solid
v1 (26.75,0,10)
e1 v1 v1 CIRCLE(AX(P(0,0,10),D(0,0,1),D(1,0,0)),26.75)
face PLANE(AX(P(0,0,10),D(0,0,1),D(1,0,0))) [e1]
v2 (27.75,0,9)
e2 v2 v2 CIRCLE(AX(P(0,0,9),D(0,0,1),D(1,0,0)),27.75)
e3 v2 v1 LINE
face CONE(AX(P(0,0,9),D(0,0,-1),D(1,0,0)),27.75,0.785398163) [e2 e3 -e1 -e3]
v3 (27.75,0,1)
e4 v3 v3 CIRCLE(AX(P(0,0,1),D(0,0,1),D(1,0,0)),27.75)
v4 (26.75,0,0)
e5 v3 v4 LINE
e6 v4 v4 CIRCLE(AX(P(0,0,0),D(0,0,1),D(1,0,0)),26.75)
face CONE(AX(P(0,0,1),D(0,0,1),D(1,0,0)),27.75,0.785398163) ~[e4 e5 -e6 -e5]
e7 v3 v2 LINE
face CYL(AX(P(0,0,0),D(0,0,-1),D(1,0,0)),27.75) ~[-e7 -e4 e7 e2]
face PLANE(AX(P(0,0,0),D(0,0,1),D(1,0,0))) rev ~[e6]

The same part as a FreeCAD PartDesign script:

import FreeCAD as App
import Part
import Sketcher


def edges_at(feature, points):
    """Names of the edges that pass closest to the given points."""
    edges = feature.Shape.Edges
    near = lambda p: min(range(len(edges)), key=lambda i: edges[i].distToShape(Part.Vertex(*p))[0])
    return sorted({f"Edge{near(p) + 1}" for p in points})

doc = App.newDocument("Part")
body = doc.addObject("PartDesign::Body", "Body")

sketch1 = body.newObject("Sketcher::SketchObject", "Sketch")
sketch1.AttachmentSupport = (doc.getObject("XY_Plane"), [""])
sketch1.MapMode = "FlatFace"
sketch1.addGeometry(Part.Circle(App.Vector(0, 0, 0), App.Vector(0, 0, 1), 28), False)
sketch1.addConstraint([
    Sketcher.Constraint("Coincident", 0, 3, -1, 1),
    Sketcher.Constraint("Diameter", 0, 55.5),
])
pad1 = body.newObject("PartDesign::Pad", "Pad")
pad1.Profile = sketch1
pad1.Length = 10
doc.recompute()

chamfer = body.newObject("PartDesign::Chamfer", "Chamfer")
chamfer.Base = (pad1, edges_at(pad1, [(-27.75, 0, 0), (-27.75, 0, 10)]))
chamfer.Size = 1

doc.recompute()
